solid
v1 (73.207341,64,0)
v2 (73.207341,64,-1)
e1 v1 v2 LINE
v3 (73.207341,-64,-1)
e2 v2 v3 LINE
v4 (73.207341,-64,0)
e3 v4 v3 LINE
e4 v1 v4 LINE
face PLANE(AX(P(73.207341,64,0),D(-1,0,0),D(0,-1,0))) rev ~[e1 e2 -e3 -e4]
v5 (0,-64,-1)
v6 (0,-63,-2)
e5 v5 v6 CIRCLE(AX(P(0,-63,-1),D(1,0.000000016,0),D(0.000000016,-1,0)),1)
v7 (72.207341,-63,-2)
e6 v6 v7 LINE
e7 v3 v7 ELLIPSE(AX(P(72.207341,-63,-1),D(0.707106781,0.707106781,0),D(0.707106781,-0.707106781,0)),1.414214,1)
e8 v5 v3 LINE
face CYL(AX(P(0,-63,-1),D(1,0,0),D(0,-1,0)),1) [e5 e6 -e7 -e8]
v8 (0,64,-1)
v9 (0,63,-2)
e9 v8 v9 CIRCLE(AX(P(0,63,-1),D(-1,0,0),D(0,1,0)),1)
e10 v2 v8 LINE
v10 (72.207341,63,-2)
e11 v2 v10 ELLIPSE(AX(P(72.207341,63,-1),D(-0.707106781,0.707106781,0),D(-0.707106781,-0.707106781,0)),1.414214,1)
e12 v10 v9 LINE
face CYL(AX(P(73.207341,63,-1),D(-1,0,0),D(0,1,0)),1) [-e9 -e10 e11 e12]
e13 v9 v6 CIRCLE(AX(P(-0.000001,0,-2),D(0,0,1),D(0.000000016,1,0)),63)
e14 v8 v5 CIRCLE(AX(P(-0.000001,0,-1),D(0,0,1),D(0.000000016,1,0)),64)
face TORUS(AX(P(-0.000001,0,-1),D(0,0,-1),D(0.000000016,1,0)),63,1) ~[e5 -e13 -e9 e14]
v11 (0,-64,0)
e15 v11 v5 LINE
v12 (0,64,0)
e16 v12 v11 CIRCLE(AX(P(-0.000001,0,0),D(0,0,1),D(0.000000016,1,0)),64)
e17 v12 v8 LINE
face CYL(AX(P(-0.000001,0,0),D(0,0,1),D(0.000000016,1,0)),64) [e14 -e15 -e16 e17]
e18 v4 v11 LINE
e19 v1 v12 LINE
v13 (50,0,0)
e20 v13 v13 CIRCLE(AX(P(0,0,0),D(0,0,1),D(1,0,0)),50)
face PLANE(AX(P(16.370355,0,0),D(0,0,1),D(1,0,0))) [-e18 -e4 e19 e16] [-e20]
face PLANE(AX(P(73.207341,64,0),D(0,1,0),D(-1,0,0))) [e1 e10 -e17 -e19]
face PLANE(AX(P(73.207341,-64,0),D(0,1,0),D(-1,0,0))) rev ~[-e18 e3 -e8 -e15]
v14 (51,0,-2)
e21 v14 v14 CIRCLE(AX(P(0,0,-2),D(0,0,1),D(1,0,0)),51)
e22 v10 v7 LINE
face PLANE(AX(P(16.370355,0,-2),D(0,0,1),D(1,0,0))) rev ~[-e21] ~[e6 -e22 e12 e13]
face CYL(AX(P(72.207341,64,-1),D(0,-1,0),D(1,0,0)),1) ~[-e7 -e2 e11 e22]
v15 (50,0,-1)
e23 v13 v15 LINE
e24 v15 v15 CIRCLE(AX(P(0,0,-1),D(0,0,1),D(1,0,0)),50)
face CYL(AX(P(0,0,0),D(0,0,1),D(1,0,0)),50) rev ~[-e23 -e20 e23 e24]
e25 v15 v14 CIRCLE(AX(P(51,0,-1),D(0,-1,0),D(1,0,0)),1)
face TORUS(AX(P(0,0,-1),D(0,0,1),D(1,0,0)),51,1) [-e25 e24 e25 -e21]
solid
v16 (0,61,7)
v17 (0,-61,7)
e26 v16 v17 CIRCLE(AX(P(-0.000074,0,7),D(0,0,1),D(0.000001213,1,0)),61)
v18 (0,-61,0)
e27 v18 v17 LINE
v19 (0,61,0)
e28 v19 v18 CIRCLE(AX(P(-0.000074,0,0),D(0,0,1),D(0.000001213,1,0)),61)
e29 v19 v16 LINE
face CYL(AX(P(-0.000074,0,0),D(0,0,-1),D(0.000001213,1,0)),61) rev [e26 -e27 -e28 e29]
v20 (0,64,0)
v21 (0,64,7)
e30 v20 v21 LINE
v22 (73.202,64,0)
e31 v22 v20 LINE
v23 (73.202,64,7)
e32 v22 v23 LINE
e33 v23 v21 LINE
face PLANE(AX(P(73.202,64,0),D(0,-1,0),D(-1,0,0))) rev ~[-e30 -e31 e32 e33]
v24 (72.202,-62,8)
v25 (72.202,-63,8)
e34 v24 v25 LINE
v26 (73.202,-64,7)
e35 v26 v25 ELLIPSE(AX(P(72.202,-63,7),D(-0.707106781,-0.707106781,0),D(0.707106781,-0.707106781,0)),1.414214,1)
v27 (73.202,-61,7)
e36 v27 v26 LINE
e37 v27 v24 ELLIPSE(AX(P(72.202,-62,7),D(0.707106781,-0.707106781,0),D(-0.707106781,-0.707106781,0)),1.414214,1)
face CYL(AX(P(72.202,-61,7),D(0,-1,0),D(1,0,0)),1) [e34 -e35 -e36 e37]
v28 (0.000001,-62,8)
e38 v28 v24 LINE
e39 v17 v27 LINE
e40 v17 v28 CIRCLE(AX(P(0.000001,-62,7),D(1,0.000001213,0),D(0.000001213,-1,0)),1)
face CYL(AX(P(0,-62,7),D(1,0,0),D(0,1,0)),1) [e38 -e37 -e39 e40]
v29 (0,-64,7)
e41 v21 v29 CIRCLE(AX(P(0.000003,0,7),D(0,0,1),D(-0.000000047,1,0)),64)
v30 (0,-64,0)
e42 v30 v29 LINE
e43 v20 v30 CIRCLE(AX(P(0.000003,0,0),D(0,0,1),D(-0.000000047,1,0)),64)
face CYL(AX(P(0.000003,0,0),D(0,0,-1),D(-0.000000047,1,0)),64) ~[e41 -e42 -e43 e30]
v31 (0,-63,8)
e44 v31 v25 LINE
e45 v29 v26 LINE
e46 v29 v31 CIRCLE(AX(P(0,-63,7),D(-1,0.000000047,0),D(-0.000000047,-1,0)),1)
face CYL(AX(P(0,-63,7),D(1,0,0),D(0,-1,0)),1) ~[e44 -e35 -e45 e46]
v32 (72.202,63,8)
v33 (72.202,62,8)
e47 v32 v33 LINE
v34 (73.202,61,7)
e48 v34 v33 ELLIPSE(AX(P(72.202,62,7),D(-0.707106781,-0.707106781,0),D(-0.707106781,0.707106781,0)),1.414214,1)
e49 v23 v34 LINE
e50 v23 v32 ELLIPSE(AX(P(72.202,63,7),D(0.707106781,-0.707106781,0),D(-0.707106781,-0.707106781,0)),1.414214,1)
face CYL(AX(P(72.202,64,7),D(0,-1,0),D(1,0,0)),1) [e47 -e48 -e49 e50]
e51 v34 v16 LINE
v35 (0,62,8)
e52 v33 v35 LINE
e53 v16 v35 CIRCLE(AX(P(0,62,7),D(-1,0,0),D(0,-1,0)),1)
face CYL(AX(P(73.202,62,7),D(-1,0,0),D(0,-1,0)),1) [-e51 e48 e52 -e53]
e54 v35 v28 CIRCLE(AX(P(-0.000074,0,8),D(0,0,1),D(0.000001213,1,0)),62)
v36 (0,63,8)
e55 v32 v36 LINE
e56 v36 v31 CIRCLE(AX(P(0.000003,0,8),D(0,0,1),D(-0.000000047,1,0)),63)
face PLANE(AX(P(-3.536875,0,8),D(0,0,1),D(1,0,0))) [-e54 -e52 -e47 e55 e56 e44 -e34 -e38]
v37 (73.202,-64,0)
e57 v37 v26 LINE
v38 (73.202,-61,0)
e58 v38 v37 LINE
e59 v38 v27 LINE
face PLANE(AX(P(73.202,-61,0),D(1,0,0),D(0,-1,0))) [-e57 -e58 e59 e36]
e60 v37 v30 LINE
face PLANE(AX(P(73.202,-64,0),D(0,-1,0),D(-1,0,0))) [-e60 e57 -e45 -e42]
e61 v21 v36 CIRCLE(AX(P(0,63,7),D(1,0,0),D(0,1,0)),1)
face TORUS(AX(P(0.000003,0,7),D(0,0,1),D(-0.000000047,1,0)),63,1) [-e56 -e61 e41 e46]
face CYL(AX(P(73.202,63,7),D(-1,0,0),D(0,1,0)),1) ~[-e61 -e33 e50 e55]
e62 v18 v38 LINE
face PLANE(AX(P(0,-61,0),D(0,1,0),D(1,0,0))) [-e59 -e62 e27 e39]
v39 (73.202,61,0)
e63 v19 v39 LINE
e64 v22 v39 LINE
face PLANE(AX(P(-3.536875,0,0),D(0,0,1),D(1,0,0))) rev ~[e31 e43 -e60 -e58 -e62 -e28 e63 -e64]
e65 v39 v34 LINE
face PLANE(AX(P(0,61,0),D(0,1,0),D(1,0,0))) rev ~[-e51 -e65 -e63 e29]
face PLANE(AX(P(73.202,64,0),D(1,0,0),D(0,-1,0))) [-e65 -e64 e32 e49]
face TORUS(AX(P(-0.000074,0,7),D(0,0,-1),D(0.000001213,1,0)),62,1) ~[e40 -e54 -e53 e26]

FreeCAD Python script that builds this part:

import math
import FreeCAD as App
import Part
import Sketcher
from FreeCAD import Vector


def edges_at(feature, points):
    """Names of the edges that pass closest to the given points."""
    edges = feature.Shape.Edges
    near = lambda p: min(range(len(edges)), key=lambda i: edges[i].distToShape(Part.Vertex(*p))[0])
    return sorted({f"Edge{near(p) + 1}" for p in points})

doc = App.newDocument("Part")
params = doc.addObject("Spreadsheet::Sheet", "Params")
for row, (alias, value) in enumerate([
    ("sketch1_radius", "64 mm"),
    ("sketch1_radius2", "61 mm"),
    ("pad1_length", "8 mm"),
    ("fillet_radius", "1 mm"),
    ("sketch2_diameter", "100 mm"),
    ("sketch2_radius", "64 mm"),
    ("pad2_length", "2 mm"),
    ("fillet2_radius", "1 mm"),
], start=1):
    params.set(f"A{row}", alias)
    params.set(f"B{row}", "=" + value)
    params.setAlias(f"B{row}", alias)

body = doc.addObject("PartDesign::Body", "Body")

# Sketch on XY plane
sketch1 = body.newObject("Sketcher::SketchObject", "Sketch")
sketch1.AttachmentSupport = (doc.getObject("XY_Plane"), [""])
sketch1.MapMode = "FlatFace"
sketch1.addGeometry([
    Part.LineSegment(Vector(73.202, 64, 0), Vector(0, 64, 0)),  # 0
    Part.ArcOfCircle(Part.Circle(Vector(0.000003, 0, 0), Vector(0, 0, 1), 64), math.radians(90.000003), math.radians(269.999997)),  # 1
    Part.LineSegment(Vector(0, -64, 0), Vector(73.202, -64, 0)),  # 2
    Part.LineSegment(Vector(73.202, -64, 0), Vector(73.202, -61, 0)),  # 3
    Part.LineSegment(Vector(73.202, -61, 0), Vector(0, -61, 0)),  # 4
    Part.ArcOfCircle(Part.Circle(Vector(-0.000074, 0, 0), Vector(0, 0, 1), 61), math.radians(89.99993), math.radians(270.00007)),  # 5
    Part.LineSegment(Vector(0, 61, 0), Vector(73.202, 61, 0)),  # 6
    Part.LineSegment(Vector(73.202, 61, 0), Vector(73.202, 64, 0)),  # 7
], False)
sketch1.addConstraint([
    Sketcher.Constraint("Coincident", 0, 2, 1, 1),
    Sketcher.Constraint("Coincident", 1, 2, 2, 1),
    Sketcher.Constraint("Coincident", 2, 2, 3, 1),
    Sketcher.Constraint("Coincident", 3, 2, 4, 1),
    Sketcher.Constraint("Coincident", 4, 2, 5, 2),
    Sketcher.Constraint("Coincident", 5, 1, 6, 1),
    Sketcher.Constraint("Coincident", 6, 2, 7, 1),
    Sketcher.Constraint("Coincident", 7, 2, 0, 1),
    Sketcher.Constraint("Horizontal", 0),
    Sketcher.Constraint("Horizontal", 2),
    Sketcher.Constraint("Vertical", 3),
    Sketcher.Constraint("Horizontal", 4),
    Sketcher.Constraint("Horizontal", 6),
    Sketcher.Constraint("Vertical", 7),
    Sketcher.Constraint("Coincident", 1, 3, -1, 1),
    Sketcher.Constraint("PointOnObject", 5, 3, -1),
    Sketcher.Constraint("PointOnObject", 0, 2, -2),
    Sketcher.Constraint("PointOnObject", 1, 2, -2),
    Sketcher.Constraint("PointOnObject", 4, 2, -2),
    Sketcher.Constraint("PointOnObject", 5, 1, -2),
    Sketcher.Constraint("Radius", 1, 64.0),
    Sketcher.Constraint("Radius", 5, 61.0),
    Sketcher.Constraint("DistanceX", 0, 2, 0, 1, 73.202),
    Sketcher.Constraint("DistanceX", 2, 1, 2, 2, 73.202),
    Sketcher.Constraint("DistanceX", 5, 3, 2, 2, 73.202074),
])
sketch1.setExpression("Constraints[20]", "Params.sketch1_radius")
sketch1.setExpression("Constraints[21]", "Params.sketch1_radius2")
pad1 = body.newObject("PartDesign::Pad", "Pad")
pad1.Profile = sketch1
pad1.setExpression("Length", "Params.pad1_length")
doc.recompute()

fillet = body.newObject("PartDesign::Fillet", "Fillet")
fillet.Base = (pad1, edges_at(pad1, [
    (36.601, 64, 8),
    (-64, 0, 8),
    (36.601, -64, 8),
    (73.202, -62.5, 8),
    (36.601, -61, 8),
    (-61, 0, 8),
    (36.601, 61, 8),
    (73.202, 62.5, 8),
]))
fillet.setExpression("Radius", "Params.fillet_radius")
body2 = doc.addObject("PartDesign::Body", "Body001")

# Sketch on XY plane
sketch2 = body2.newObject("Sketcher::SketchObject", "Sketch001")
sketch2.AttachmentSupport = (doc.getObject("XY_Plane001"), [""])
sketch2.MapMode = "FlatFace"
sketch2.addGeometry([
    Part.LineSegment(Vector(73.207341, 64, 0), Vector(0, 64, 0)),  # 0
    Part.ArcOfCircle(Part.Circle(Vector(-0.000001, 0, 0), Vector(0, 0, 1), 64), math.radians(89.999999), math.radians(270.000001)),  # 1
    Part.LineSegment(Vector(0, -64, 0), Vector(73.207341, -64, 0)),  # 2
    Part.LineSegment(Vector(73.207341, -64, 0), Vector(73.207341, 64, 0)),  # 3
    Part.Circle(Vector(0, 0, 0), Vector(0, 0, 1), 50),  # 4
], False)
sketch2.addConstraint([
    Sketcher.Constraint("Tangent", 0, 2, 1, 1),
    Sketcher.Constraint("Tangent", 1, 2, 2, 1),
    Sketcher.Constraint("Coincident", 2, 2, 3, 1),
    Sketcher.Constraint("Coincident", 3, 2, 0, 1),
    Sketcher.Constraint("Horizontal", 0),
    Sketcher.Constraint("Horizontal", 2),
    Sketcher.Constraint("Vertical", 3),
    Sketcher.Constraint("Coincident", 1, 3, -1, 1),
    Sketcher.Constraint("Coincident", 4, 3, -1, 1),
    Sketcher.Constraint("Diameter", 4, 100.0),
    Sketcher.Constraint("Radius", 1, 64.0),
    Sketcher.Constraint("DistanceX", 0, 2, 0, 1, 73.207341),
])
sketch2.setExpression("Constraints[9]", "Params.sketch2_diameter")
sketch2.setExpression("Constraints[10]", "Params.sketch2_radius")
pad2 = body2.newObject("PartDesign::Pad", "Pad001")
pad2.Profile = sketch2
pad2.setExpression("Length", "Params.pad2_length")
pad2.Reversed = True
doc.recompute()

fillet2 = body2.newObject("PartDesign::Fillet", "Fillet001")
fillet2.Base = (pad2, edges_at(pad2, [
    (36.604, 64, -2),
    (-64, 0, -2),
    (36.604, -64, -2),
    (73.207, 0, -2),
    (-50, 0, -2),
]))
fillet2.setExpression("Radius", "Params.fillet2_radius")

doc.recompute()
